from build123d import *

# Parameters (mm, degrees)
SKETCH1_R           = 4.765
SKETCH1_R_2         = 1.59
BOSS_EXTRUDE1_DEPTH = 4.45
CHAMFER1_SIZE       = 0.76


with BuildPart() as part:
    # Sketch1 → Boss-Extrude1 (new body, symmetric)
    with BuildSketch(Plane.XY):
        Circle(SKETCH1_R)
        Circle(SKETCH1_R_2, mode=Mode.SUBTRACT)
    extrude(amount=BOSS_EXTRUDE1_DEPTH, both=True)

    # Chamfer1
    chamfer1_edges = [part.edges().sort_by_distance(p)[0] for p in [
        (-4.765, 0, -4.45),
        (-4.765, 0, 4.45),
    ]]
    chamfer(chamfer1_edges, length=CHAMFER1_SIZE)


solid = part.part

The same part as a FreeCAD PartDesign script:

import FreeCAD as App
import Part
import Sketcher
from FreeCAD import Vector


def edges_at(feature, points):
    """Names of the edges that pass closest to the given points."""
    edges = feature.Shape.Edges
    near = lambda p: min(range(len(edges)), key=lambda i: edges[i].distToShape(Part.Vertex(*p))[0])
    return sorted({f"Edge{near(p) + 1}" for p in points})

doc = App.newDocument("Part")
body = doc.addObject("PartDesign::Body", "Body")

# Sketch on XY plane
sketch1 = body.newObject("Sketcher::SketchObject", "Sketch")
sketch1.AttachmentSupport = (doc.getObject("XY_Plane"), [""])
sketch1.MapMode = "FlatFace"
sketch1.addGeometry([
    Part.Circle(Vector(0, 0, 0), Vector(0, 0, 1), 4.765),
    Part.Circle(Vector(0, 0, 0), Vector(0, 0, 1), 1.59),
], False)
sketch1.addConstraint([
    Sketcher.Constraint("Coincident", 0, 3, -1, 1),
    Sketcher.Constraint("Coincident", 1, 3, -1, 1),
    Sketcher.Constraint("Diameter", 0, 9.53),
    Sketcher.Constraint("Diameter", 1, 3.18),
])
pad1 = body.newObject("PartDesign::Pad", "Pad")
pad1.Profile = sketch1
pad1.Length = 8.9
pad1.Midplane = True
doc.recompute()

chamfer = body.newObject("PartDesign::Chamfer", "Chamfer")
chamfer.Base = (pad1, edges_at(pad1, [(-4.765, 0, -4.45), (-4.765, 0, 4.45)]))
chamfer.Size = 0.76

doc.recompute()
